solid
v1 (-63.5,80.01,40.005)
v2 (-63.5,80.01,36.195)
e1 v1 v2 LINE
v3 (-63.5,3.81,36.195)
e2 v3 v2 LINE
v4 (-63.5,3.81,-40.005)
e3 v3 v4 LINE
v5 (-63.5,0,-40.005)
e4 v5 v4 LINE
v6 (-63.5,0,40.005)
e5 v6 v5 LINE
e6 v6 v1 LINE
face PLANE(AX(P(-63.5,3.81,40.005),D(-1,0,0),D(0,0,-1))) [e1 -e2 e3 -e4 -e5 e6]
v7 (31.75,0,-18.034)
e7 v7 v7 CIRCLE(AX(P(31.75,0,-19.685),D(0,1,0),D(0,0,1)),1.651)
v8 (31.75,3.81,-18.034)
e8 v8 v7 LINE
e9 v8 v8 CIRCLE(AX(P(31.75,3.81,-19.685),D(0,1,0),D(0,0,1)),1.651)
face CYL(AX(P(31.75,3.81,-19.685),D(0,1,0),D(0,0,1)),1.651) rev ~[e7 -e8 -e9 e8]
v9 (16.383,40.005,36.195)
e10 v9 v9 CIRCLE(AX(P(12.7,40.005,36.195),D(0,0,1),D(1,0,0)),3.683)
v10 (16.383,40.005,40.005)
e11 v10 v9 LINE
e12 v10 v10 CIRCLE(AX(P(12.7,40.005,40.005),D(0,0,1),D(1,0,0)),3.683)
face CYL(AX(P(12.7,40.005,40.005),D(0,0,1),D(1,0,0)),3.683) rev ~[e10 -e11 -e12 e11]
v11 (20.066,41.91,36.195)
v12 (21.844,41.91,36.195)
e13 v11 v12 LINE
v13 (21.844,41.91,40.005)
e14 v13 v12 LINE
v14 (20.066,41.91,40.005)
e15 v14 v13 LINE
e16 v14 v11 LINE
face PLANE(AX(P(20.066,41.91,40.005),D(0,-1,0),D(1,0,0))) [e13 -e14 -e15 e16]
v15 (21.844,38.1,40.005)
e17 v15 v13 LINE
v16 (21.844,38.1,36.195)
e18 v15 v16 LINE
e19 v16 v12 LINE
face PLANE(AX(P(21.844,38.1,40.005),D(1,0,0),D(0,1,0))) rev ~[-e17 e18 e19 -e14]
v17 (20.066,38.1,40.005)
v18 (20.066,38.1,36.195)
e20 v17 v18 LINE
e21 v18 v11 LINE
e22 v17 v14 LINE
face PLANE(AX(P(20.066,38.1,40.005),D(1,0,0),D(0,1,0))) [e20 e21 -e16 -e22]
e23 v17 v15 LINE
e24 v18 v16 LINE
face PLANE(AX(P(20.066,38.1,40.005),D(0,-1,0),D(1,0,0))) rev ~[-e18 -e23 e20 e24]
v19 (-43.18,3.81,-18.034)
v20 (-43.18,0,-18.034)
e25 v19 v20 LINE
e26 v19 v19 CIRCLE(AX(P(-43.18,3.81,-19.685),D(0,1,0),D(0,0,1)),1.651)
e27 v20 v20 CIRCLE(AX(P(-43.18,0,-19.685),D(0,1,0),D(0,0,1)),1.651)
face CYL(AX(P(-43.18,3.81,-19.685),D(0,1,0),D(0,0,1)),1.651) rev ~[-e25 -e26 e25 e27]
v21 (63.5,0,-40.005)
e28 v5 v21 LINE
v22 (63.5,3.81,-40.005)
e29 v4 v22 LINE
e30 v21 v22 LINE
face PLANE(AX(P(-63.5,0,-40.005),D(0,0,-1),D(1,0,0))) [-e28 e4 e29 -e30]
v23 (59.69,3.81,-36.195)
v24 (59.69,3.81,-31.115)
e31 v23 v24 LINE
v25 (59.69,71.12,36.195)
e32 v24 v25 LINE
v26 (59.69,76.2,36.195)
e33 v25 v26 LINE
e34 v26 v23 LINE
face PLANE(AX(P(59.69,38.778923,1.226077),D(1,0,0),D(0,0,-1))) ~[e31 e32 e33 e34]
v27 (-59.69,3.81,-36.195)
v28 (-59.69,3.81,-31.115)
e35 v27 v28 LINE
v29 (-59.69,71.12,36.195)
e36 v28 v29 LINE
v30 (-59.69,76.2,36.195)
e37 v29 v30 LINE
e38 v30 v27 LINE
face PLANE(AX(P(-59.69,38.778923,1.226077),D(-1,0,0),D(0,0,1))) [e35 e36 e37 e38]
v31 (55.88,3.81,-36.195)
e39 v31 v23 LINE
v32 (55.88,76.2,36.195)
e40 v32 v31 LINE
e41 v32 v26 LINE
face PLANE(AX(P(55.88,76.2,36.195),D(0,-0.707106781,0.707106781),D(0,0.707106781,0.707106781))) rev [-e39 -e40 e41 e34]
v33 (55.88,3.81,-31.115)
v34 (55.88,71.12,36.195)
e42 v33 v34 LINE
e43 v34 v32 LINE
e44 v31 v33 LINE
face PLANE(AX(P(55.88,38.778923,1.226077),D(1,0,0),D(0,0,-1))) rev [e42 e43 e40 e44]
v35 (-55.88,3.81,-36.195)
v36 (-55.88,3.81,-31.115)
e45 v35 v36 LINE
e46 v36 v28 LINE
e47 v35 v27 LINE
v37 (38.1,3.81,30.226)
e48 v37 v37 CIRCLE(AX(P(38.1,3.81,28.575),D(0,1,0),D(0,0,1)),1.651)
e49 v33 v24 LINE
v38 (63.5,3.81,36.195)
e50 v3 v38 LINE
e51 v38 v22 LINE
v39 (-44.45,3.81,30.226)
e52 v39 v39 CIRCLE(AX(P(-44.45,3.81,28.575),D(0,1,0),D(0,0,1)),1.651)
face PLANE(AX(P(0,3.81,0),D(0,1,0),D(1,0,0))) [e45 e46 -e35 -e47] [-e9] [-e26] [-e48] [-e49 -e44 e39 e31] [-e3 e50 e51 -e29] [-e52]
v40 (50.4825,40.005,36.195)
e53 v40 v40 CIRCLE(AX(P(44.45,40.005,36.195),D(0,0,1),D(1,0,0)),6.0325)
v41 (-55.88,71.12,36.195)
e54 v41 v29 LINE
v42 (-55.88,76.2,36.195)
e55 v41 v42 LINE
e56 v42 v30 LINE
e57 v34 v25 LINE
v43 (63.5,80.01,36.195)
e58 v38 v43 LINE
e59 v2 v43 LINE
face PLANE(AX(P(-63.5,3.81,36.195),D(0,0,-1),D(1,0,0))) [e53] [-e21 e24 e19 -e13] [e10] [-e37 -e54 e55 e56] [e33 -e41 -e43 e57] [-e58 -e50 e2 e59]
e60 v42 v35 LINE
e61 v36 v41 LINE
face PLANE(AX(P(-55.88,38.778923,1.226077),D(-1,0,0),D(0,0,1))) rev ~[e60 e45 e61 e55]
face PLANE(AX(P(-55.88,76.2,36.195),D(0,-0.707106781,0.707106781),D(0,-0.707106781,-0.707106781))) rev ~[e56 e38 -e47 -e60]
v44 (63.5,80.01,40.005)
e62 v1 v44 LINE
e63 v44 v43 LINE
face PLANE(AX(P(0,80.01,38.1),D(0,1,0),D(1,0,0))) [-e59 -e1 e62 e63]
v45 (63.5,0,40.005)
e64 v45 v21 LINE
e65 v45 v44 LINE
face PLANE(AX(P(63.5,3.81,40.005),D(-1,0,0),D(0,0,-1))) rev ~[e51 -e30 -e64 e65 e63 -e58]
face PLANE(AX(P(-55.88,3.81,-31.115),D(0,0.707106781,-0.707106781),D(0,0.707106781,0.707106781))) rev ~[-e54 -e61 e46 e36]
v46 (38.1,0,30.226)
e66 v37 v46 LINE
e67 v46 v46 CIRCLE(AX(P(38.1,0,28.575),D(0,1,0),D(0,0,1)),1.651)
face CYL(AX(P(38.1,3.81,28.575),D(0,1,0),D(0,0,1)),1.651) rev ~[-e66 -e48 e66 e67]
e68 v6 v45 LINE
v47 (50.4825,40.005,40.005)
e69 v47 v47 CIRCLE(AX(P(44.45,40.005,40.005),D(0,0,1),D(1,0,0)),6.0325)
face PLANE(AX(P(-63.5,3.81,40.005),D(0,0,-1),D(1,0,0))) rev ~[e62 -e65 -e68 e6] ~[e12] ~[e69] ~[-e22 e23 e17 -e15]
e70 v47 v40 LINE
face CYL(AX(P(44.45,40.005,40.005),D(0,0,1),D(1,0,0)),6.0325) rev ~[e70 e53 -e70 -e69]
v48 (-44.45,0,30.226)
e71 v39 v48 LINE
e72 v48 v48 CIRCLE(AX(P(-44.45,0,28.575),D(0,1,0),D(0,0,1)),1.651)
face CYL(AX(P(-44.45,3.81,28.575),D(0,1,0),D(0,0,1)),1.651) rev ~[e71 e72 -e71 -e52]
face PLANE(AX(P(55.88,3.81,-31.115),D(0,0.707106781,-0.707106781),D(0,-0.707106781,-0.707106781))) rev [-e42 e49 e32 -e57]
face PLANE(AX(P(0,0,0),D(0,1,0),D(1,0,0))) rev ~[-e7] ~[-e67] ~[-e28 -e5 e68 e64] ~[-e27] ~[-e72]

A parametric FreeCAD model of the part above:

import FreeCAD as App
import Part
import Sketcher
Q = App.Units.Quantity


def add_polygon(sketch, points):
    """Adds a closed chain of lines whose ends are joined by coincident constraints."""
    first, n = sketch.GeometryCount, len(points)
    for a, b in zip(points, points[1:] + points[:1]):
        sketch.addGeometry(Part.LineSegment(App.Vector(*a, 0), App.Vector(*b, 0)), False)
    for i in range(n):
        sketch.addConstraint(Sketcher.Constraint("Coincident", first + i, 2, first + (i + 1) % n, 1))

doc = App.newDocument("Part")
params = doc.addObject("Spreadsheet::Sheet", "Params")
for row, (alias, value) in enumerate([
    ("sketch1_width", "5 in"),
    ("sketch1_height", "3.15 in"),
    ("pad1_length", "0.15 in"),
    ("sketch2_width", "5 in"),
    ("sketch2_height", "0.15 in"),
    ("pad2_length", "3 in"),
    ("sketch3_diameter", "0.13 in"),
    ("sketch4_width", "0.2 in"),
    ("pad3_length", "0.15 in"),
    ("sketch5_diameter", "0.475 in"),
    ("sketch6_diameter", "0.29 in"),
    ("sketch6_width", "0.07 in"),
    ("sketch6_height", "0.15 in"),
    ("pocket3_length", "0.15 in"),
], start=1):
    params.set(f"A{row}", alias)
    params.set(f"B{row}", "=" + value)
    params.setAlias(f"B{row}", alias)

body = doc.addObject("PartDesign::Body", "Body")

# Sketch on XZ plane
sketch1 = body.newObject("Sketcher::SketchObject", "Sketch")
sketch1.AttachmentSupport = (doc.getObject("XZ_Plane"), [""])
sketch1.MapMode = "FlatFace"
add_polygon(sketch1, [(-64, -40), (-64, 40), (64, 40), (64, -40)])  # lines 0-3
sketch1.addConstraint([
    Sketcher.Constraint("Vertical", 0),
    Sketcher.Constraint("Horizontal", 1),
    Sketcher.Constraint("Vertical", 2),
    Sketcher.Constraint("Horizontal", 3),
    Sketcher.Constraint("Symmetric", 0, 2, 2, 2, -1, 1),
    Sketcher.Constraint("DistanceX", 1, 1, 1, 2, Q("5 in")),
    Sketcher.Constraint("DistanceY", 0, 1, 0, 2, Q("3.15 in")),
])
sketch1.setExpression("Constraints[9]", "Params.sketch1_width")
sketch1.setExpression("Constraints[10]", "Params.sketch1_height")
pad1 = body.newObject("PartDesign::Pad", "Pad")
pad1.Profile = sketch1
pad1.setExpression("Length", "Params.pad1_length")
pad1.Reversed = True

# Sketch on XZ plane
sketch2 = body.newObject("Sketcher::SketchObject", "Sketch001")
sketch2.AttachmentSupport = (doc.getObject("XZ_Plane"), [""])
sketch2.MapMode = "FlatFace"
sketch2.AttachmentOffset = App.Placement(App.Vector(0, 0, -0.15 * 25.4), App.Rotation())
add_polygon(sketch2, [(-63.5, 36.2), (-63.5, 40), (63.5, 40), (63.5, 36.2)])  # lines 0-3
sketch2.addConstraint([
    Sketcher.Constraint("Vertical", 0),
    Sketcher.Constraint("Horizontal", 1),
    Sketcher.Constraint("Vertical", 2),
    Sketcher.Constraint("Horizontal", 3),
    Sketcher.Constraint("DistanceX", 1, 1, 1, 2, Q("5 in")),
    Sketcher.Constraint("DistanceY", 0, 1, 0, 2, Q("0.15 in")),
    Sketcher.Constraint("DistanceX", 0, 2, -1, 1, Q("2.5 in")),
    Sketcher.Constraint("DistanceY", -1, 1, 0, 2, Q("1.575 in")),
])
sketch2.setExpression("Constraints[8]", "Params.sketch2_width")
sketch2.setExpression("Constraints[9]", "Params.sketch2_height")
pad2 = body.newObject("PartDesign::Pad", "Pad001")
pad2.Profile = sketch2
pad2.setExpression("Length", "Params.pad2_length")
pad2.Reversed = True

# Sketch on XZ plane
sketch3 = body.newObject("Sketcher::SketchObject", "Sketch002")
sketch3.AttachmentSupport = (doc.getObject("XZ_Plane"), [""])
sketch3.MapMode = "FlatFace"
sketch3.AttachmentOffset = App.Placement(App.Vector(0, 0, -0.15 * 25.4), App.Rotation())
sketch3.addGeometry([
    Part.Circle(App.Vector(-44.5, 28.6, 0), App.Vector(0, 0, 1), 1.7),
    Part.Circle(App.Vector(-43.2, -19.7, 0), App.Vector(0, 0, 1), 1.7),
    Part.Circle(App.Vector(31.8, -19.7, 0), App.Vector(0, 0, 1), 1.7),
    Part.Circle(App.Vector(38.1, 28.6, 0), App.Vector(0, 0, 1), 1.7),
], False)
sketch3.addConstraint([
    Sketcher.Constraint("Equal", 0, 1),
    Sketcher.Constraint("Equal", 1, 2),
    Sketcher.Constraint("Equal", 2, 3),
    Sketcher.Constraint("Horizontal", 1, 3, 2, 3),
    Sketcher.Constraint("Horizontal", 0, 3, 3, 3),
    Sketcher.Constraint("Diameter", 0, Q("0.13 in")),
    Sketcher.Constraint("DistanceX", 0, 3, 2, 3, Q("3 in")),
    Sketcher.Constraint("DistanceX", 1, 3, -1, 1, Q("1.7 in")),
    Sketcher.Constraint("DistanceX", -1, 1, 3, 3, Q("1.5 in")),
    Sketcher.Constraint("DistanceY", 1, 3, 0, 3, Q("1.9 in")),
    Sketcher.Constraint("DistanceX", 0, 3, -1, 1, Q("1.75 in")),
    Sketcher.Constraint("DistanceY", -1, 1, 0, 3, Q("1.125 in")),
])
sketch3.setExpression("Constraints[5]", "Params.sketch3_diameter")
pocket1 = body.newObject("PartDesign::Pocket", "Pocket")
pocket1.Profile = sketch3
pocket1.Type = "ThroughAll"
pocket1.Reversed = True

# Sketch on YZ plane
sketch4 = body.newObject("Sketcher::SketchObject", "Sketch003")
sketch4.AttachmentSupport = (doc.getObject("YZ_Plane"), [""])
sketch4.MapMode = "FlatFace"
sketch4.AttachmentOffset = App.Placement(App.Vector(0, 0, -2.2 * 25.4), App.Rotation())
add_polygon(sketch4, [(76, 36), (4, -36), (4, -31), (71, 36)])  # lines 0-3
sketch4.addConstraint([
    Sketcher.Constraint("Vertical", 1),
    Sketcher.Constraint("Horizontal", 3),
    Sketcher.Constraint("Parallel", 0, 2),
    Sketcher.Constraint("Equal", 3, 1),
    Sketcher.Constraint("DistanceX", 3, 1, 3, 2, Q("0.2 in")),
    Sketcher.Constraint("DistanceX", -1, 1, 3, 2, Q("3 in")),
    Sketcher.Constraint("DistanceX", -1, 1, 0, 2, Q("0.15 in")),
    Sketcher.Constraint("DistanceY", 0, 2, -1, 1, Q("1.425 in")),
])
sketch4.setExpression("Constraints[8]", "Params.sketch4_width")
pad3 = body.newObject("PartDesign::Pad", "Pad002")
pad3.Profile = sketch4
pad3.setExpression("Length", "Params.pad3_length")
pad3.Reversed = True
doc.recompute()

mirrored = body.newObject("PartDesign::Mirrored", "Mirrored")
mirrored.Originals = [pad3]
mirrored.MirrorPlane = (doc.getObject("YZ_Plane"), [""])
body.Tip = mirrored

# Sketch on XY plane
sketch5 = body.newObject("Sketcher::SketchObject", "Sketch004")
sketch5.AttachmentSupport = (doc.getObject("XY_Plane"), [""])
sketch5.MapMode = "FlatFace"
sketch5.AttachmentOffset = App.Placement(App.Vector(0, 0, 1.575 * 25.4), App.Rotation())
sketch5.addGeometry(Part.Circle(App.Vector(44, 40, 0), App.Vector(0, 0, 1), 6), False)
sketch5.addConstraint([
    Sketcher.Constraint("Diameter", 0, Q("0.475 in")),
    Sketcher.Constraint("DistanceX", -1, 1, 0, 3, Q("1.75 in")),
    Sketcher.Constraint("DistanceY", -1, 1, 0, 3, Q("1.575 in")),
])
sketch5.setExpression("Constraints[0]", "Params.sketch5_diameter")
pocket2 = body.newObject("PartDesign::Pocket", "Pocket001")
pocket2.Profile = sketch5
pocket2.Type = "ThroughAll"

# Sketch on XY plane
sketch6 = body.newObject("Sketcher::SketchObject", "Sketch005")
sketch6.AttachmentSupport = (doc.getObject("XY_Plane"), [""])
sketch6.MapMode = "FlatFace"
sketch6.AttachmentOffset = App.Placement(App.Vector(0, 0, 1.575 * 25.4), App.Rotation())
sketch6.addGeometry(Part.Circle(App.Vector(12.7, 40, 0), App.Vector(0, 0, 1), 3.7), False)  # 0
add_polygon(sketch6, [(20.1, 41.9), (20.1, 38.1), (21.8, 38.1), (21.8, 41.9)])  # lines 1-4
sketch6.addConstraint([
    Sketcher.Constraint("Vertical", 1),
    Sketcher.Constraint("Horizontal", 2),
    Sketcher.Constraint("Vertical", 3),
    Sketcher.Constraint("Horizontal", 4),
    Sketcher.Constraint("Diameter", 0, Q("0.29 in")),
    Sketcher.Constraint("DistanceX", 2, 1, 2, 2, Q("0.07 in")),
    Sketcher.Constraint("DistanceY", 1, 2, 1, 1, Q("0.15 in")),
    Sketcher.Constraint("DistanceX", -1, 1, 0, 3, Q("0.5 in")),
    Sketcher.Constraint("DistanceY", -1, 1, 1, 2, Q("1.5 in")),
    Sketcher.Constraint("DistanceX", -1, 1, 1, 2, Q("0.79 in")),
    Sketcher.Constraint("DistanceY", -1, 1, 0, 3, Q("1.575 in")),
])
sketch6.setExpression("Constraints[8]", "Params.sketch6_diameter")
sketch6.setExpression("Constraints[9]", "Params.sketch6_width")
sketch6.setExpression("Constraints[10]", "Params.sketch6_height")
pocket3 = body.newObject("PartDesign::Pocket", "Pocket002")
pocket3.Profile = sketch6
pocket3.setExpression("Length", "Params.pocket3_length")

doc.recompute()
